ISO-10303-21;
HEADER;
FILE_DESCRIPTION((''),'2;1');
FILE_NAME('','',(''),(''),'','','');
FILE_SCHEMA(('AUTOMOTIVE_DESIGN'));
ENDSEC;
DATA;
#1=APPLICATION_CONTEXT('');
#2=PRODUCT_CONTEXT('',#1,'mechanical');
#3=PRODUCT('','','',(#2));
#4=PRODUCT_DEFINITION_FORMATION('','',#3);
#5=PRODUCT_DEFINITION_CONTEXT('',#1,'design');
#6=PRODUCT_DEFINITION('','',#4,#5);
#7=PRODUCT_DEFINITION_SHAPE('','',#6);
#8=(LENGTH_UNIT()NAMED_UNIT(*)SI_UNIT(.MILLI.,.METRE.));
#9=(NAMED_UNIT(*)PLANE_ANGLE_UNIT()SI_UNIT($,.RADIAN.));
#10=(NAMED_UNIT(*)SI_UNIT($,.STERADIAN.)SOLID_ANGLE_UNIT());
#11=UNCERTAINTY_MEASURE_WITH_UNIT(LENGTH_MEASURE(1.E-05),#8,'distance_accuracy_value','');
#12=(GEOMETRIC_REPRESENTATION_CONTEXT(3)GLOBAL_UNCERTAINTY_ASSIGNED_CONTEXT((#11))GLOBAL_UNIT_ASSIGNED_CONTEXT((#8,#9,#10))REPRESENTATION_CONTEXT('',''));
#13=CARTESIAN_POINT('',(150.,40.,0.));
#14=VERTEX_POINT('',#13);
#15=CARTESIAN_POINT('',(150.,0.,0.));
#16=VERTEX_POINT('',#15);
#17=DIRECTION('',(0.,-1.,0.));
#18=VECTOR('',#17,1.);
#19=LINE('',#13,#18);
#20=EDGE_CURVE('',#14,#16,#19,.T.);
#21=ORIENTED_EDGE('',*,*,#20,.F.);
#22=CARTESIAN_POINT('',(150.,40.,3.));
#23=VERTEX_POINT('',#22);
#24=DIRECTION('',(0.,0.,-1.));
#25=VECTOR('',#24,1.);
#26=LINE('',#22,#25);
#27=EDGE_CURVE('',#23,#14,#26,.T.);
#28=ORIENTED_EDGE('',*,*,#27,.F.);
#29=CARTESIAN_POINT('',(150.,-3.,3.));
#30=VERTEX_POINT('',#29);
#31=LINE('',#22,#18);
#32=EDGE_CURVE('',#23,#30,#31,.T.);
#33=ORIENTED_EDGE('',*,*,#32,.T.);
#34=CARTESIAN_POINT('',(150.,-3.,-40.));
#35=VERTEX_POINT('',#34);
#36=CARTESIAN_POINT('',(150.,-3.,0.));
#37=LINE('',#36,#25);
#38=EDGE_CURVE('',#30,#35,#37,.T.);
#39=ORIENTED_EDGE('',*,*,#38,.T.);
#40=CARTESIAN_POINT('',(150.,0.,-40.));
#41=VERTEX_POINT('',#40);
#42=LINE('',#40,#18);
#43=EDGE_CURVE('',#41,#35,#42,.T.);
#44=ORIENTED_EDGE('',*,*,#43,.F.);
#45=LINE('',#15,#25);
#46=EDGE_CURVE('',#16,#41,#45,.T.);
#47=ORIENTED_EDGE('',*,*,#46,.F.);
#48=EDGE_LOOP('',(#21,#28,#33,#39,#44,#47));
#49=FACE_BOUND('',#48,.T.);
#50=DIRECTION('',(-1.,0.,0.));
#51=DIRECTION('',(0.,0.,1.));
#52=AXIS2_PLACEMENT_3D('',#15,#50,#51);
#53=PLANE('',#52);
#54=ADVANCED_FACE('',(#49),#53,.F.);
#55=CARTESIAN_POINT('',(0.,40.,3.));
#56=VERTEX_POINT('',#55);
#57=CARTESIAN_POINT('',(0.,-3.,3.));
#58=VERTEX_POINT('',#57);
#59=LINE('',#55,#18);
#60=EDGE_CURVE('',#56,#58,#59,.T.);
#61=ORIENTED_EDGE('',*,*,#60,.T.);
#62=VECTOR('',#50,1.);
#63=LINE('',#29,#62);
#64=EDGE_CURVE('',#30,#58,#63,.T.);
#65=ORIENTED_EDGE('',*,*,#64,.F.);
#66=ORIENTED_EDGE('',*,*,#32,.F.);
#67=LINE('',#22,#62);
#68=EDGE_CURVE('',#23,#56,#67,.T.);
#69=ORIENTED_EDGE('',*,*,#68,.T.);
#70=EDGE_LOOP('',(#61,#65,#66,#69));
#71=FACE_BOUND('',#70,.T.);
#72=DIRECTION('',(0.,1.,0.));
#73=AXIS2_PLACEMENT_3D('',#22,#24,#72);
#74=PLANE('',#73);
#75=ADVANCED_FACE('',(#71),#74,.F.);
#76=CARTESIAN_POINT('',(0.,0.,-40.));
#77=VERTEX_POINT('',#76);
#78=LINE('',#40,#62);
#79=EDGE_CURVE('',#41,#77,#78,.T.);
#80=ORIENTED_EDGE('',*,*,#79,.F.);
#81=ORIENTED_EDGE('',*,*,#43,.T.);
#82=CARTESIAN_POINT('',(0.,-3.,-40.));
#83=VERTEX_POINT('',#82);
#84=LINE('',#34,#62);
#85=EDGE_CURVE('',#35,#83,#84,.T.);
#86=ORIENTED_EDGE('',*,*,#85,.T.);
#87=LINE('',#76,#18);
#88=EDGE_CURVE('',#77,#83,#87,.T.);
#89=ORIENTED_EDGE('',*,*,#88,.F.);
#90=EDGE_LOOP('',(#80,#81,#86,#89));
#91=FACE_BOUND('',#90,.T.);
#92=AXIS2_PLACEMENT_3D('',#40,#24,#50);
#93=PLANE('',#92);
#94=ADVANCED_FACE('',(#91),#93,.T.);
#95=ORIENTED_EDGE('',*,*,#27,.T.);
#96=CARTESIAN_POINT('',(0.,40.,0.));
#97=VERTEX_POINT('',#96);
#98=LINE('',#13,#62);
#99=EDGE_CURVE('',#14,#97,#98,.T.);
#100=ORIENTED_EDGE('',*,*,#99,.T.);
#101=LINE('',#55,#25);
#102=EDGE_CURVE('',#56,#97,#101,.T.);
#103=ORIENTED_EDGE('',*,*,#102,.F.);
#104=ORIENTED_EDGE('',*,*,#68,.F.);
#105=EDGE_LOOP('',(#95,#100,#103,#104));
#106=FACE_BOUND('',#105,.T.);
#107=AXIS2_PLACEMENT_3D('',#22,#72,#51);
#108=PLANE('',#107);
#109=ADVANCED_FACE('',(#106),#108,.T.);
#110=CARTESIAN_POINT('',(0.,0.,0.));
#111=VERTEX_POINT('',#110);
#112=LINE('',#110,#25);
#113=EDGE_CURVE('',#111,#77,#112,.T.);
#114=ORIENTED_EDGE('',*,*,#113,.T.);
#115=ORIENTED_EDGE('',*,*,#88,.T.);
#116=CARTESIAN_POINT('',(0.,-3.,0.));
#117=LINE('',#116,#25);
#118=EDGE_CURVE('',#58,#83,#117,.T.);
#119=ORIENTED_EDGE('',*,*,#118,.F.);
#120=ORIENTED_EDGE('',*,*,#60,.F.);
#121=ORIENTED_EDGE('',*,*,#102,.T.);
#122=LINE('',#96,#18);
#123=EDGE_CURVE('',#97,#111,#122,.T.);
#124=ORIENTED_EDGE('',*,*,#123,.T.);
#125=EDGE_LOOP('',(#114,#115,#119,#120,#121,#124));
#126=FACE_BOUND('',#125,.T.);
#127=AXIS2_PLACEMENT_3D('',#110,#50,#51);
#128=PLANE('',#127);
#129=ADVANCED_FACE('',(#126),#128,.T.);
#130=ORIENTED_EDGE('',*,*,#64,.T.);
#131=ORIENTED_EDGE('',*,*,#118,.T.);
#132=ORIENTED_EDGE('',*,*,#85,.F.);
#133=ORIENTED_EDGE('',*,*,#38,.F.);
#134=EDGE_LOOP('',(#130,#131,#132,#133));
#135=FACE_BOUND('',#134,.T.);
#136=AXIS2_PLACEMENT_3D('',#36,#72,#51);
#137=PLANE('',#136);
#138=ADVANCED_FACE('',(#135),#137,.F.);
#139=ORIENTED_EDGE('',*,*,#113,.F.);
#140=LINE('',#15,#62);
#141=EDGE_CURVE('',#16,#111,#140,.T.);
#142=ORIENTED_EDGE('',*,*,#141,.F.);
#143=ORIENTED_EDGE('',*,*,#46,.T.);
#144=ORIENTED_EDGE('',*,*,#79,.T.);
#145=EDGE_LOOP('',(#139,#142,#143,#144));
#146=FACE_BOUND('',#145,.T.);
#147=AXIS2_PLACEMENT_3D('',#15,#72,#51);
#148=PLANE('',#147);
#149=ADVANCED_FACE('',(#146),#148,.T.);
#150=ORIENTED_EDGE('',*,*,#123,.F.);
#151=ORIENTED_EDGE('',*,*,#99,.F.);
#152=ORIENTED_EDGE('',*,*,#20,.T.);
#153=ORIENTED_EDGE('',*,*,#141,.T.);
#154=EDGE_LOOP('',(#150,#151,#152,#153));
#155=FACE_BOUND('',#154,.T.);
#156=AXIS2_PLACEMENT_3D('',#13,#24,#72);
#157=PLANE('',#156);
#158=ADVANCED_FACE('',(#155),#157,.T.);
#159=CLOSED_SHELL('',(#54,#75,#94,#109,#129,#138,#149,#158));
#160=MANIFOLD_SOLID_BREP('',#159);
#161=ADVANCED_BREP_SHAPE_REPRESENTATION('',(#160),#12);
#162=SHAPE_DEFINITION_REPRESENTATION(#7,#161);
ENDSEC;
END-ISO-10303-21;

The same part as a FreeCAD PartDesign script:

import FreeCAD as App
import Part
import Sketcher
from FreeCAD import Vector


def add_polygon(sketch, points):
    """Adds a closed chain of lines whose ends are joined by coincident constraints."""
    first, n = sketch.GeometryCount, len(points)
    for a, b in zip(points, points[1:] + points[:1]):
        sketch.addGeometry(Part.LineSegment(App.Vector(*a, 0), App.Vector(*b, 0)), False)
    for i in range(n):
        sketch.addConstraint(Sketcher.Constraint("Coincident", first + i, 2, first + (i + 1) % n, 1))

doc = App.newDocument("Part")
body = doc.addObject("PartDesign::Body", "Body")

sketch1 = body.newObject("Sketcher::SketchObject", "Sketch")
sketch1.AttachmentSupport = (doc.getObject("YZ_Plane"), [""])
sketch1.MapMode = "FlatFace"
add_polygon(sketch1, [(0, 0), (40, 0), (40, 3), (-3, 3), (-3, -40), (0, -40)])
sketch1.addConstraint([
    Sketcher.Constraint("Horizontal", 0),
    Sketcher.Constraint("Vertical", 1),
    Sketcher.Constraint("Horizontal", 2),
    Sketcher.Constraint("Vertical", 3),
    Sketcher.Constraint("Horizontal", 4),
    Sketcher.Constraint("Vertical", 5),
    Sketcher.Constraint("Coincident", 5, 2, -1, 1),
    Sketcher.Constraint("Equal", 4, 1),
    Sketcher.Constraint("Equal", 2, 3),
    Sketcher.Constraint("DistanceX", 0, 1, 0, 2, 40.0),
    Sketcher.Constraint("DistanceX", 2, 2, 2, 1, 43.0),
])
pad1 = body.newObject("PartDesign::Pad", "Pad")
pad1.Profile = sketch1
pad1.Length = 150

doc.recompute()
